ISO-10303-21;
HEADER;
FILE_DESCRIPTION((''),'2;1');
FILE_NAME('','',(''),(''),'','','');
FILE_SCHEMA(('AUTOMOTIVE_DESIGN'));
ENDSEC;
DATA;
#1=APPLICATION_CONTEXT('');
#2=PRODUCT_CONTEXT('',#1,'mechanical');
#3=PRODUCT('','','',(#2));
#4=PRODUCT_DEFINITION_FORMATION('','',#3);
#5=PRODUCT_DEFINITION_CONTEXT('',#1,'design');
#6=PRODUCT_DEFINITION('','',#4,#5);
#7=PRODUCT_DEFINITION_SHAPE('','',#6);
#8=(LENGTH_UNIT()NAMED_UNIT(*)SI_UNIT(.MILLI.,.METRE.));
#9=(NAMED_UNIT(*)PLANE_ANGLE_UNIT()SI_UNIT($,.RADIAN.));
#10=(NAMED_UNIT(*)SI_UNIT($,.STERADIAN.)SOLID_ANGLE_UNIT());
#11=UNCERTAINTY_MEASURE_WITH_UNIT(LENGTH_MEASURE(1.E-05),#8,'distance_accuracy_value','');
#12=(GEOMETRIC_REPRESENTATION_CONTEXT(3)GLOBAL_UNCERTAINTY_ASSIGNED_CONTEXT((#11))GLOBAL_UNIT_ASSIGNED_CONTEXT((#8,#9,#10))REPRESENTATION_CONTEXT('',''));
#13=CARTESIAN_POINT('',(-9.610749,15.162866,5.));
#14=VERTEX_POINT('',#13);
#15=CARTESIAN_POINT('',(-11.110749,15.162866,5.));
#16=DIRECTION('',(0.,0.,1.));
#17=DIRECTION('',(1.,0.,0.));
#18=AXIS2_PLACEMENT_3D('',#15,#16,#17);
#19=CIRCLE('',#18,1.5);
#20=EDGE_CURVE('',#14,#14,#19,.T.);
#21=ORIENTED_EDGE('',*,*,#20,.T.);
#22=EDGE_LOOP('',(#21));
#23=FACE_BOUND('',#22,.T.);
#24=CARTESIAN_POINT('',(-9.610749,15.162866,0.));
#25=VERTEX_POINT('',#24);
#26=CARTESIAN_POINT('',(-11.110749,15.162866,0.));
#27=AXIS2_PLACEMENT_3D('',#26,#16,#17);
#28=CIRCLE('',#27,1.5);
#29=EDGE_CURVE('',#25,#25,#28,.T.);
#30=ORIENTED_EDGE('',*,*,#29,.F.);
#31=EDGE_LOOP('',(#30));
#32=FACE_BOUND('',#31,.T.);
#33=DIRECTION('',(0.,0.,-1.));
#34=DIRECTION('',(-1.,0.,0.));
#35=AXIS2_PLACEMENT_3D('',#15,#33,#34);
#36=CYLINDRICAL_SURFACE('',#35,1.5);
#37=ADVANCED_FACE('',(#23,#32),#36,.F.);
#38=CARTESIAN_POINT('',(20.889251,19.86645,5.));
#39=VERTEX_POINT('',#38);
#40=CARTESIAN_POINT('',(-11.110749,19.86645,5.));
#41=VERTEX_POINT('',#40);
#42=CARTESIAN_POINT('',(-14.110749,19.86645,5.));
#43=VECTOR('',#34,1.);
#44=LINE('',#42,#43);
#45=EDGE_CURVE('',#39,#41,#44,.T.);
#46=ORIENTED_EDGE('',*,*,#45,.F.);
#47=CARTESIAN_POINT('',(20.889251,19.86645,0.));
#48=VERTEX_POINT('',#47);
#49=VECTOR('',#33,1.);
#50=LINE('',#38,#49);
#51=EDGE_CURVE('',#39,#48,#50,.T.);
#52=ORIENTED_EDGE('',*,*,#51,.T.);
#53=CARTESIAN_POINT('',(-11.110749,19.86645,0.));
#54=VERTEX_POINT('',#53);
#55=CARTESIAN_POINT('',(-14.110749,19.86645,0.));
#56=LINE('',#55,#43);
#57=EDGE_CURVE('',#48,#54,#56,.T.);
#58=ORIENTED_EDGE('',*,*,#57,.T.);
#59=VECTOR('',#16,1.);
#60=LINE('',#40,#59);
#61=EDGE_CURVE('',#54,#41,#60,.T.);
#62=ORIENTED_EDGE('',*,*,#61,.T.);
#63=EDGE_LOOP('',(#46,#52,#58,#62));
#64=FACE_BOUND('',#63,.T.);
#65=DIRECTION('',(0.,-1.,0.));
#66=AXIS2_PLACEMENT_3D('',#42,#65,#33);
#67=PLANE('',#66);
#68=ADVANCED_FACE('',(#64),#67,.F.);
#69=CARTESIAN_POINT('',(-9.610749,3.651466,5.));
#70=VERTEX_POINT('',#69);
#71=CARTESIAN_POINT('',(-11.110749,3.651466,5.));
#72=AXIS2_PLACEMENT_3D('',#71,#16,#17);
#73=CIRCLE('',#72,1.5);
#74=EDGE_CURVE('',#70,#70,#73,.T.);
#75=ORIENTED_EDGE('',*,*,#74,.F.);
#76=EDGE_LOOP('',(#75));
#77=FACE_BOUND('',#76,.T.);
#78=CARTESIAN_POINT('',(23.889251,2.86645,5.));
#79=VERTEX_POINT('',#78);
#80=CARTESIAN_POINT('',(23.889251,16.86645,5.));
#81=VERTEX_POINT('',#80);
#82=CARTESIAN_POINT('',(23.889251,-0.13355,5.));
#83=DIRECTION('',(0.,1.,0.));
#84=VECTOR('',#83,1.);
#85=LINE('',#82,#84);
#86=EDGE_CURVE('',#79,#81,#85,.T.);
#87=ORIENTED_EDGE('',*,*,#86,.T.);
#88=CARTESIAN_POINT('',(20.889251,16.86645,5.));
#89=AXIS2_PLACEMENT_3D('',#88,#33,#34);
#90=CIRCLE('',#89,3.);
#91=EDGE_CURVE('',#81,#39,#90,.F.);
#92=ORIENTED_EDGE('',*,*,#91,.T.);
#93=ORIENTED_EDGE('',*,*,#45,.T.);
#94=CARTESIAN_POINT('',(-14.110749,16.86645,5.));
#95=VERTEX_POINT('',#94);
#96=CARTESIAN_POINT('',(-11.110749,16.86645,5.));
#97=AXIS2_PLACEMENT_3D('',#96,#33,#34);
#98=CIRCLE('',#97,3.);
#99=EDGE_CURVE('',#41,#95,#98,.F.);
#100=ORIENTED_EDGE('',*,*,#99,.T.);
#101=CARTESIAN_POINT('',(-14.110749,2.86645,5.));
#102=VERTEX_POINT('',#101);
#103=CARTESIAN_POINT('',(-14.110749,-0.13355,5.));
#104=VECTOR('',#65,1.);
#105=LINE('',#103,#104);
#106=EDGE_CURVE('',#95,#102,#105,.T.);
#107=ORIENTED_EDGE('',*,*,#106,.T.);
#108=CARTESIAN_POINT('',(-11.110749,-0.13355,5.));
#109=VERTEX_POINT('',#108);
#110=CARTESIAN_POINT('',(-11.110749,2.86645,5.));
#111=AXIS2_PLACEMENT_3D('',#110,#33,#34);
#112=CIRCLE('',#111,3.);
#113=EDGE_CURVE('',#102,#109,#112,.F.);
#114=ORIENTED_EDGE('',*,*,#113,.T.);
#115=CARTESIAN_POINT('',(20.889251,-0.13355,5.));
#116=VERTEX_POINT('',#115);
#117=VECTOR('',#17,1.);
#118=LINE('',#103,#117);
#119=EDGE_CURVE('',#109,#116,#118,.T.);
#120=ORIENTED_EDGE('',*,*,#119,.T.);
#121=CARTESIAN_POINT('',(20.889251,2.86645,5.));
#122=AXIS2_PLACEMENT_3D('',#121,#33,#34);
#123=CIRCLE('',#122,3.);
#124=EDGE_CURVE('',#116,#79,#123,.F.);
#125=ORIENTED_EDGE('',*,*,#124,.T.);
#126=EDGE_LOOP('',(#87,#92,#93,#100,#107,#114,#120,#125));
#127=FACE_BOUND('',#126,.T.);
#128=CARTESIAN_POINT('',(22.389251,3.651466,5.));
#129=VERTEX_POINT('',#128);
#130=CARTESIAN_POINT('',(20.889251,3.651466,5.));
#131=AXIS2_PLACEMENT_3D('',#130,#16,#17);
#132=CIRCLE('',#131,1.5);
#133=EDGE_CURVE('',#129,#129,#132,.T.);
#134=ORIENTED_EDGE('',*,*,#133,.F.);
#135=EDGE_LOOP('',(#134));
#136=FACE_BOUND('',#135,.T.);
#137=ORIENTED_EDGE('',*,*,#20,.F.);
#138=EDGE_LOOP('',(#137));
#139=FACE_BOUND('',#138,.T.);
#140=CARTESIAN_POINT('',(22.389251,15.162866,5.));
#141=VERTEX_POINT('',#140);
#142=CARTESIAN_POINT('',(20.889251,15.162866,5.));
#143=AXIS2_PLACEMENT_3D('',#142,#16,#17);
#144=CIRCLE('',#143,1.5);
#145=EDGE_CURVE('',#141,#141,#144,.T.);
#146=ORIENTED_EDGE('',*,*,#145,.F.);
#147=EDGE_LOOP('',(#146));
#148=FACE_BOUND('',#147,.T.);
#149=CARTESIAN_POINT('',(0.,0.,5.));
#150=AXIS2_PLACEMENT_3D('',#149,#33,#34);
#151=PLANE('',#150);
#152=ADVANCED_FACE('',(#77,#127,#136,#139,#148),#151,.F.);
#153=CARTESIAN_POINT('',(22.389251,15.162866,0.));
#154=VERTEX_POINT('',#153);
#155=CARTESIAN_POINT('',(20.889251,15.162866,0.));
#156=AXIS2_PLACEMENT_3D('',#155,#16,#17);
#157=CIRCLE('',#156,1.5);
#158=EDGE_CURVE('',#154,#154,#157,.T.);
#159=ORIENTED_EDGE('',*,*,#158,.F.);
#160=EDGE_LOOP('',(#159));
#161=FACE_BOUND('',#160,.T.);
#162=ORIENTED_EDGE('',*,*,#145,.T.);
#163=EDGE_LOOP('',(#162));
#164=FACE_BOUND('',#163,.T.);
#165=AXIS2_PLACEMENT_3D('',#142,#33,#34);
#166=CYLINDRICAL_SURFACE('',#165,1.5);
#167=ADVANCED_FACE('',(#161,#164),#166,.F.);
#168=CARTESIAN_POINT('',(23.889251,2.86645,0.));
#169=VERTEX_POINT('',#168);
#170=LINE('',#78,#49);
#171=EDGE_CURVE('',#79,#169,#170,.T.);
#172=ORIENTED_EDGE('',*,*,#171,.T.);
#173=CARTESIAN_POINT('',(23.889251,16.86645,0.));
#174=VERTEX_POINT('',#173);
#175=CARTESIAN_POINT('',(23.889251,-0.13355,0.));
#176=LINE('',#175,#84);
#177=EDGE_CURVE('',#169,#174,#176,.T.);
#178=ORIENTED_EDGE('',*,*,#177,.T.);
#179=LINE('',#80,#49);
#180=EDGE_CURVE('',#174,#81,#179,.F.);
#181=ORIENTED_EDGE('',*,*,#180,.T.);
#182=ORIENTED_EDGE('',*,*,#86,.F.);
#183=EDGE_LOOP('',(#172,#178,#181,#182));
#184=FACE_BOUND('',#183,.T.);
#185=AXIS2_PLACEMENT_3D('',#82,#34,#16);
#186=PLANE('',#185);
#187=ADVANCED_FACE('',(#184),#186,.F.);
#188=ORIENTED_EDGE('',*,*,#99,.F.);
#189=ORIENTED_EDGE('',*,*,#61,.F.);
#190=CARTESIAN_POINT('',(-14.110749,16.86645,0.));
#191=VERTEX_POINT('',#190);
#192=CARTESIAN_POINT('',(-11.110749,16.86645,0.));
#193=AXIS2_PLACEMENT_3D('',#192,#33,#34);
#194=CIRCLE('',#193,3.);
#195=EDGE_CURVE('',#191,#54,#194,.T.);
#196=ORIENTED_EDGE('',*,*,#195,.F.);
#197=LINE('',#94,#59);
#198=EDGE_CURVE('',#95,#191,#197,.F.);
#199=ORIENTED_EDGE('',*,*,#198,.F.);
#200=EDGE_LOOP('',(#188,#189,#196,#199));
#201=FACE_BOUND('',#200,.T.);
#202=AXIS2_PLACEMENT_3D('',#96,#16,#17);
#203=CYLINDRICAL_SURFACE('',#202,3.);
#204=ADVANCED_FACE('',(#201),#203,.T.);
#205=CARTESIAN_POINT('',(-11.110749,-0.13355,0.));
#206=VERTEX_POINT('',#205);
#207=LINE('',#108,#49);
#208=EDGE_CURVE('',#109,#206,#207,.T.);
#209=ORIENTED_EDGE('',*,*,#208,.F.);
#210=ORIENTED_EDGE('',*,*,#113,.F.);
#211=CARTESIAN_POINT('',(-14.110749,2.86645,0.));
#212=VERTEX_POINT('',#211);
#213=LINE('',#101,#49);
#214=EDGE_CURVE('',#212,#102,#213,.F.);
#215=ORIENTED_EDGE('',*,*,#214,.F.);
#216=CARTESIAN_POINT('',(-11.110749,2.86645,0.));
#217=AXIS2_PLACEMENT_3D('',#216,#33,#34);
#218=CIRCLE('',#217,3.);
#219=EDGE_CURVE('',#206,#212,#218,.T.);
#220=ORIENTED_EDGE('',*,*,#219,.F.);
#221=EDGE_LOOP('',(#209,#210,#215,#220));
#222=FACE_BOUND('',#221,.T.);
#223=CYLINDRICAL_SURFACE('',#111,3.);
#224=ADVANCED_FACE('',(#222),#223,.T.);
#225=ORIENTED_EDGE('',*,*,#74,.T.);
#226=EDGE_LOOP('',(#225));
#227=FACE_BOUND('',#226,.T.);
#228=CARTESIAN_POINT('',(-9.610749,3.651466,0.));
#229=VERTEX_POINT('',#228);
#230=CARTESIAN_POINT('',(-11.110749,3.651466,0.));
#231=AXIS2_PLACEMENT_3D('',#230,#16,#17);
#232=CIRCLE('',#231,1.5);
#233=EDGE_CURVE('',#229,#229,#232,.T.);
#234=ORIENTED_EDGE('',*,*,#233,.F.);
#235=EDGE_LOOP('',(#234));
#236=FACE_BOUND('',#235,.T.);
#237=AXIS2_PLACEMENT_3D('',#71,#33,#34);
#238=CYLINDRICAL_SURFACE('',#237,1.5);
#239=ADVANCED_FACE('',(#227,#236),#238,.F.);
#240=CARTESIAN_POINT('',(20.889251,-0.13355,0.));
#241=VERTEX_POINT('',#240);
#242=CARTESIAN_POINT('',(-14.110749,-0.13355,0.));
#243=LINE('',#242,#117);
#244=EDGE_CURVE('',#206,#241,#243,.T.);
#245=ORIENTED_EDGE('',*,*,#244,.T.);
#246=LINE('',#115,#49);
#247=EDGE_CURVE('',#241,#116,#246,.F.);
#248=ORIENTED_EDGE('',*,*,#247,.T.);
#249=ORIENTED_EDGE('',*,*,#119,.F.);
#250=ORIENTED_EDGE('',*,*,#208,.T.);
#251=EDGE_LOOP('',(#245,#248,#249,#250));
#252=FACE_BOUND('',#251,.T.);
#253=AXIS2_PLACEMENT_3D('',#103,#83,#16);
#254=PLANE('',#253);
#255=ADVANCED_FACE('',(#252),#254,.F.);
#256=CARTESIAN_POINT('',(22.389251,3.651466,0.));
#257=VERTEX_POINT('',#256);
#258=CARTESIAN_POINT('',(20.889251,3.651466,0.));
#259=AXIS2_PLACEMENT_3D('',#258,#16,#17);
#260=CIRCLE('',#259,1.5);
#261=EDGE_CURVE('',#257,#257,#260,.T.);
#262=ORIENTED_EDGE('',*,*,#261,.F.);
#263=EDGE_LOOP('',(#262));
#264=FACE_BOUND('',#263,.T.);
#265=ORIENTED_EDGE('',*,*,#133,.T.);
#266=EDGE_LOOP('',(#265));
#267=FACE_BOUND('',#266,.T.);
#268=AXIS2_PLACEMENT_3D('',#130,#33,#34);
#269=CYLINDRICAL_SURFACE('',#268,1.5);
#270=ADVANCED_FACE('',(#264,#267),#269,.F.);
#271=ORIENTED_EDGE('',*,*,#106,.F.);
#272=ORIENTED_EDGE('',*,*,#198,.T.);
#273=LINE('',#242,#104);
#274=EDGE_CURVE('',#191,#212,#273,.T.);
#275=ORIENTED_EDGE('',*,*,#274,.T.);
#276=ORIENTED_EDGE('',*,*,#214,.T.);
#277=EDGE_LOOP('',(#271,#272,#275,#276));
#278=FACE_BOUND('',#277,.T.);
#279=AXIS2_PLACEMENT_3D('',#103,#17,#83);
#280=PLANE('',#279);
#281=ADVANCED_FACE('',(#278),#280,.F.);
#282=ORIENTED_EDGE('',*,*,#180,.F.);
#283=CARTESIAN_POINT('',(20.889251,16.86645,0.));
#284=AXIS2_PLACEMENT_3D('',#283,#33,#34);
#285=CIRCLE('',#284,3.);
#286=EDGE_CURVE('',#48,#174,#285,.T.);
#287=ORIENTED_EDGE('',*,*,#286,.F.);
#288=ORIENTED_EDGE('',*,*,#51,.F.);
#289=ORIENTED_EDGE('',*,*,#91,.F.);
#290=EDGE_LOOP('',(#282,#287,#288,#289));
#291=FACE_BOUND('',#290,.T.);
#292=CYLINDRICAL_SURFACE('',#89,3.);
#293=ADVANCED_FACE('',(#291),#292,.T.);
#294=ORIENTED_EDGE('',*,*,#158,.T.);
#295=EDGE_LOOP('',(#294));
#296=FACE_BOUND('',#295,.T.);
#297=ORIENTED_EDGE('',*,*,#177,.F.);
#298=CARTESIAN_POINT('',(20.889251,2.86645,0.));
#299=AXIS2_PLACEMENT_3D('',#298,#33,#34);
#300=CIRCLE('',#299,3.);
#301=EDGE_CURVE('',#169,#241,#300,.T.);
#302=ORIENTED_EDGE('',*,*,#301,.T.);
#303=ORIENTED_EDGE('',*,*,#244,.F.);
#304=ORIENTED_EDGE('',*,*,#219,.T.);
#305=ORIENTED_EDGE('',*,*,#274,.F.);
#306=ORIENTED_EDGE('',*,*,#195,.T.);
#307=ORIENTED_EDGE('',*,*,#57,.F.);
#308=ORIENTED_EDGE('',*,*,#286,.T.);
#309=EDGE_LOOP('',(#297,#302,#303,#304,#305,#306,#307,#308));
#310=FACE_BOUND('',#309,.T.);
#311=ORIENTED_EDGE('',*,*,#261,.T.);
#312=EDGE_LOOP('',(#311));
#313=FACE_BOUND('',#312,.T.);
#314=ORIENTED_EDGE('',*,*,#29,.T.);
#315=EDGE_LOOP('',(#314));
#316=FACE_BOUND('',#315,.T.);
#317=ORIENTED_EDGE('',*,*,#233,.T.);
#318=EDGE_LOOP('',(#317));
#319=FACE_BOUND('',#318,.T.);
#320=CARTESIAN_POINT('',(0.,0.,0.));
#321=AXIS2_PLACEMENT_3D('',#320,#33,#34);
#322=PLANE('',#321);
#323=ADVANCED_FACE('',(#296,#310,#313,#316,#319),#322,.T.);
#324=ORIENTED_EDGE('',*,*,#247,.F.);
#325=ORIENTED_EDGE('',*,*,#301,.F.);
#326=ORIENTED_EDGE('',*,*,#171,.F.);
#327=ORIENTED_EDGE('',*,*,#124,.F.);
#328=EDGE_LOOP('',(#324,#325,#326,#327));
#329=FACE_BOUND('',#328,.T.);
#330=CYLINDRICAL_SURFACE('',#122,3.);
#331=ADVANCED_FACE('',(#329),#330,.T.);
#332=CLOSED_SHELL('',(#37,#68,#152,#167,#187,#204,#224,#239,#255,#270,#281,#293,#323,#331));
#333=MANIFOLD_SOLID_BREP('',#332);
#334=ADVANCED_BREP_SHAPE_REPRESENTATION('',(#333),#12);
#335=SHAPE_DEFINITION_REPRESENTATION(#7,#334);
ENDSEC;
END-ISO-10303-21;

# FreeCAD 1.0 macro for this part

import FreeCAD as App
import Part
import Sketcher


def edges_at(feature, points):
    """Names of the edges that pass closest to the given points."""
    edges = feature.Shape.Edges
    near = lambda p: min(range(len(edges)), key=lambda i: edges[i].distToShape(Part.Vertex(*p))[0])
    return sorted({f"Edge{near(p) + 1}" for p in points})


def add_polygon(sketch, points):
    """Adds a closed chain of lines whose ends are joined by coincident constraints."""
    first, n = sketch.GeometryCount, len(points)
    for a, b in zip(points, points[1:] + points[:1]):
        sketch.addGeometry(Part.LineSegment(App.Vector(*a, 0), App.Vector(*b, 0)), False)
    for i in range(n):
        sketch.addConstraint(Sketcher.Constraint("Coincident", first + i, 2, first + (i + 1) % n, 1))

doc = App.newDocument("Part")
body = doc.addObject("PartDesign::Body", "Body")

# Sketch on XY plane
sketch1 = body.newObject("Sketcher::SketchObject", "Sketch")
sketch1.AttachmentSupport = (doc.getObject("XY_Plane"), [""])
sketch1.MapMode = "FlatFace"
add_polygon(sketch1, [(-14.1, 19.9), (-14.1, -0.1), (23.9, -0.1), (23.9, 19.9)])  # lines 0-3
sketch1.addGeometry(Part.Circle(App.Vector(-11.1, 3.7, 0), App.Vector(0, 0, 1), 1.5), False)  # 4
sketch1.addGeometry(Part.Circle(App.Vector(20.9, 3.7, 0), App.Vector(0, 0, 1), 1.5), False)  # 5
sketch1.addGeometry(Part.Circle(App.Vector(-11.1, 15.2, 0), App.Vector(0, 0, 1), 1.5), False)  # 6
sketch1.addGeometry(Part.Circle(App.Vector(20.9, 15.2, 0), App.Vector(0, 0, 1), 1.5), False)  # 7
sketch1.addConstraint([
    Sketcher.Constraint("Vertical", 0),
    Sketcher.Constraint("Horizontal", 1),
    Sketcher.Constraint("Vertical", 2),
    Sketcher.Constraint("Horizontal", 3),
    Sketcher.Constraint("Equal", 4, 5),
    Sketcher.Constraint("Equal", 5, 6),
    Sketcher.Constraint("Equal", 6, 7),
    Sketcher.Constraint("Horizontal", 4, 3, 5, 3),
    Sketcher.Constraint("Horizontal", 6, 3, 7, 3),
    Sketcher.Constraint("Vertical", 4, 3, 6, 3),
    Sketcher.Constraint("Vertical", 5, 3, 7, 3),
    Sketcher.Constraint("Diameter", 4, 3.0),
    Sketcher.Constraint("DistanceX", 1, 1, 1, 2, 38.0),
    Sketcher.Constraint("DistanceY", 0, 2, 0, 1, 20.0),
    Sketcher.Constraint("DistanceX", 4, 3, 5, 3, 32.0),
    Sketcher.Constraint("DistanceX", 0, 2, 4, 3, 3.0),
    Sketcher.Constraint("DistanceY", 4, 3, 6, 3, 11.511401),
    Sketcher.Constraint("DistanceX", 4, 3, -1, 1, 11.110749),
    Sketcher.Constraint("DistanceY", 0, 2, -1, 1, 0.13355),
    Sketcher.Constraint("DistanceY", -1, 1, 4, 3, 3.651466),
])
pad1 = body.newObject("PartDesign::Pad", "Pad")
pad1.Profile = sketch1
pad1.Length = 5
doc.recompute()

fillet = body.newObject("PartDesign::Fillet", "Fillet")
fillet.Base = (pad1, edges_at(pad1, [(23.889, 19.866, 2.5)]))
fillet.Radius = 3
doc.recompute()

fillet2 = body.newObject("PartDesign::Fillet", "Fillet001")
fillet2.Base = (fillet, edges_at(fillet, [(23.889, -0.134, 2.5)]))
fillet2.Radius = 3
doc.recompute()

fillet3 = body.newObject("PartDesign::Fillet", "Fillet002")
fillet3.Base = (fillet2, edges_at(fillet2, [(-14.111, -0.134, 2.5)]))
fillet3.Radius = 3
doc.recompute()

fillet4 = body.newObject("PartDesign::Fillet", "Fillet003")
fillet4.Base = (fillet3, edges_at(fillet3, [(-14.111, 19.866, 2.5)]))
fillet4.Radius = 3

doc.recompute()
